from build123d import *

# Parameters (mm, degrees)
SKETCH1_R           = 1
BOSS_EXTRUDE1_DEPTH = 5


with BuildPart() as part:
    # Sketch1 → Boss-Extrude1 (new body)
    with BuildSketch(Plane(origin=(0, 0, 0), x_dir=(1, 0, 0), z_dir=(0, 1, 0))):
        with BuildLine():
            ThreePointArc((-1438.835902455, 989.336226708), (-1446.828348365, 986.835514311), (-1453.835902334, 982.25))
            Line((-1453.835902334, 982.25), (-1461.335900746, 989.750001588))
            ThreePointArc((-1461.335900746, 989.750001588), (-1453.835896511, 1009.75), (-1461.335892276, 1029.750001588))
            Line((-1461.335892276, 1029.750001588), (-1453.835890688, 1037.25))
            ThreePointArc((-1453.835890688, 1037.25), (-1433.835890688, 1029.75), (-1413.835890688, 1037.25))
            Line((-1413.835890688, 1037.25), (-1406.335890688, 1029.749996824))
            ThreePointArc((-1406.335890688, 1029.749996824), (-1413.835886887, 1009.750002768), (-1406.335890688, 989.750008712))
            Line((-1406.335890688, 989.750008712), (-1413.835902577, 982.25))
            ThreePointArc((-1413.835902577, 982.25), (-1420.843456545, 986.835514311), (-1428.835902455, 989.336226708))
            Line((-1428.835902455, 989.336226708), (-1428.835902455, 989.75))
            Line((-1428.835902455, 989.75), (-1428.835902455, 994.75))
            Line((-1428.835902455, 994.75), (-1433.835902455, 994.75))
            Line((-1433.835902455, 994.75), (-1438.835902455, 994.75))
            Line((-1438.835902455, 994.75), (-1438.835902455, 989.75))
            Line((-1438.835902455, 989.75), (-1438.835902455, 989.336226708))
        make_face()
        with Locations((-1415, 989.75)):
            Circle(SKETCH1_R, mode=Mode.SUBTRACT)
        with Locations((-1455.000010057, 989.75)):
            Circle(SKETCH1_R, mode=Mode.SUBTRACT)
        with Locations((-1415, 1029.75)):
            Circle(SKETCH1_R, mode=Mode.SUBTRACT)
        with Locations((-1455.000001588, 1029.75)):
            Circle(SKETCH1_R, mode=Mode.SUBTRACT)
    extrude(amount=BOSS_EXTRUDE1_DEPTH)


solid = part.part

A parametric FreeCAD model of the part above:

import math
import FreeCAD as App
import Part
import Sketcher
Q = App.Units.Quantity

doc = App.newDocument("Part")
body = doc.addObject("PartDesign::Body", "Body")

# Sketch on XZ plane
sketch1 = body.newObject("Sketcher::SketchObject", "Sketch")
sketch1.AttachmentSupport = (doc.getObject("XZ_Plane"), [""])
sketch1.MapMode = "FlatFace"
sketch1.addGeometry([
    Part.ArcOfCircle(Part.Circle(App.Vector(-1433.8, -959.3, 0), App.Vector(0, 0, 1), 30.4), math.radians(-131), math.radians(-99)),  # 0
    Part.LineSegment(App.Vector(-1438.8, -989.3, 0), App.Vector(-1438.8, -994.8, 0)),  # 1
    Part.LineSegment(App.Vector(-1438.8, -994.8, 0), App.Vector(-1428.8, -994.8, 0)),  # 2
    Part.LineSegment(App.Vector(-1428.8, -994.8, 0), App.Vector(-1428.8, -989.3, 0)),  # 3
    Part.ArcOfCircle(Part.Circle(App.Vector(-1433.8, -959.3, 0), App.Vector(0, 0, 1), 30.4), math.radians(-81), math.radians(-49)),  # 4
    Part.LineSegment(App.Vector(-1413.8, -982.2, 0), App.Vector(-1406.3, -989.8, 0)),  # 5
    Part.ArcOfCircle(Part.Circle(App.Vector(-1383.4, -1009.8, 0), App.Vector(0, 0, 1), 30.4), math.radians(139), math.radians(221)),  # 6
    Part.LineSegment(App.Vector(-1406.3, -1029.7, 0), App.Vector(-1413.8, -1037.2, 0)),  # 7
    Part.ArcOfCircle(Part.Circle(App.Vector(-1433.8, -1060.2, 0), App.Vector(0, 0, 1), 30.4), math.radians(49), math.radians(131)),  # 8
    Part.LineSegment(App.Vector(-1453.8, -1037.2, 0), App.Vector(-1461.3, -1029.8, 0)),  # 9
    Part.ArcOfCircle(Part.Circle(App.Vector(-1484.3, -1009.8, 0), App.Vector(0, 0, 1), 30.4), math.radians(-41), math.radians(41)),  # 10
    Part.LineSegment(App.Vector(-1461.3, -989.8, 0), App.Vector(-1453.8, -982.2, 0)),  # 11
    Part.Circle(App.Vector(-1415, -989.8, 0), App.Vector(0, 0, 1), 1),  # 12
    Part.Circle(App.Vector(-1455, -989.8, 0), App.Vector(0, 0, 1), 1),  # 13
    Part.Circle(App.Vector(-1415, -1029.8, 0), App.Vector(0, 0, 1), 1),  # 14
    Part.Circle(App.Vector(-1455, -1029.8, 0), App.Vector(0, 0, 1), 1),  # 15
], False)
sketch1.addConstraint([
    Sketcher.Constraint("Coincident", 0, 2, 1, 1),
    Sketcher.Constraint("Coincident", 1, 2, 2, 1),
    Sketcher.Constraint("Coincident", 2, 2, 3, 1),
    Sketcher.Constraint("Coincident", 3, 2, 4, 1),
    Sketcher.Constraint("Coincident", 4, 2, 5, 1),
    Sketcher.Constraint("Coincident", 5, 2, 6, 1),
    Sketcher.Constraint("Coincident", 6, 2, 7, 1),
    Sketcher.Constraint("Coincident", 7, 2, 8, 1),
    Sketcher.Constraint("Coincident", 8, 2, 9, 1),
    Sketcher.Constraint("Coincident", 9, 2, 10, 1),
    Sketcher.Constraint("Coincident", 10, 2, 11, 1),
    Sketcher.Constraint("Coincident", 11, 2, 0, 1),
    Sketcher.Constraint("Vertical", 1),
    Sketcher.Constraint("Horizontal", 2),
    Sketcher.Constraint("Vertical", 3),
    Sketcher.Constraint("Coincident", 4, 3, 0, 3),
    Sketcher.Constraint("Equal", 0, 4),
    Sketcher.Constraint("Equal", 4, 8),
    Sketcher.Constraint("Equal", 8, 10),
    Sketcher.Constraint("Equal", 12, 13),
    Sketcher.Constraint("Equal", 13, 14),
    Sketcher.Constraint("Equal", 14, 15),
    Sketcher.Constraint("Perpendicular", 5, 7),
    Sketcher.Constraint("Perpendicular", 7, 9),
    Sketcher.Constraint("Perpendicular", 9, 11),
    Sketcher.Constraint("Horizontal", 12, 3, 13, 3),
    Sketcher.Constraint("Horizontal", 14, 3, 15, 3),
    Sketcher.Constraint("Horizontal", 0, 2, 3, 2),
    Sketcher.Constraint("Horizontal", 7, 2, 8, 2),
    Sketcher.Constraint("Horizontal", 15, 3, 9, 2),
    Sketcher.Constraint("Horizontal", 13, 3, 10, 2),
    Sketcher.Constraint("Horizontal", 4, 2, 11, 2),
    Sketcher.Constraint("Vertical", 12, 3, 14, 3),
    Sketcher.Constraint("Vertical", 5, 2, 6, 2),
    Sketcher.Constraint("Equal", 9, 11),
    Sketcher.Constraint("Diameter", 12, Q("2 mm")),
    Sketcher.Constraint("DistanceX", 2, 1, 2, 2, Q("10 mm")),
    Sketcher.Constraint("Angle", 5, Q("-44.999988 deg")),
    Sketcher.Constraint("DistanceX", 12, 3, -1, 1, Q("1415 mm")),
    Sketcher.Constraint("DistanceX", 15, 3, -1, 1, Q("1455.000002 mm")),
    Sketcher.Constraint("DistanceY", 14, 3, 12, 3, Q("40 mm")),
    Sketcher.Constraint("DistanceY", 1, 2, 13, 3, Q("5 mm")),
    Sketcher.Constraint("DistanceX", 3, 2, 4, 2, Q("15 mm")),
    Sketcher.Constraint("DistanceX", 8, 3, 7, 2, Q("20 mm")),
    Sketcher.Constraint("DistanceY", 12, 3, 4, 2, Q("7.5 mm")),
    Sketcher.Constraint("DistanceX", 8, 3, 6, 2, Q("27.5 mm")),
    Sketcher.Constraint("DistanceY", 12, 3, -1, 1, Q("989.75 mm")),
    Sketcher.Constraint("Radius", 0, Q("30.416666 mm")),
    Sketcher.Constraint("Radius", 6, Q("30.416662 mm")),
    Sketcher.Constraint("DistanceX", 10, 2, -1, 1, Q("1461.335901 mm")),
    Sketcher.Constraint("DistanceX", 8, 3, -1, 1, Q("1433.835891 mm")),
    Sketcher.Constraint("DistanceX", 13, 3, -1, 1, Q("1455.00001 mm")),
])
pad1 = body.newObject("PartDesign::Pad", "Pad")
pad1.Profile = sketch1
pad1.Length = 5
pad1.Reversed = True

doc.recompute()
